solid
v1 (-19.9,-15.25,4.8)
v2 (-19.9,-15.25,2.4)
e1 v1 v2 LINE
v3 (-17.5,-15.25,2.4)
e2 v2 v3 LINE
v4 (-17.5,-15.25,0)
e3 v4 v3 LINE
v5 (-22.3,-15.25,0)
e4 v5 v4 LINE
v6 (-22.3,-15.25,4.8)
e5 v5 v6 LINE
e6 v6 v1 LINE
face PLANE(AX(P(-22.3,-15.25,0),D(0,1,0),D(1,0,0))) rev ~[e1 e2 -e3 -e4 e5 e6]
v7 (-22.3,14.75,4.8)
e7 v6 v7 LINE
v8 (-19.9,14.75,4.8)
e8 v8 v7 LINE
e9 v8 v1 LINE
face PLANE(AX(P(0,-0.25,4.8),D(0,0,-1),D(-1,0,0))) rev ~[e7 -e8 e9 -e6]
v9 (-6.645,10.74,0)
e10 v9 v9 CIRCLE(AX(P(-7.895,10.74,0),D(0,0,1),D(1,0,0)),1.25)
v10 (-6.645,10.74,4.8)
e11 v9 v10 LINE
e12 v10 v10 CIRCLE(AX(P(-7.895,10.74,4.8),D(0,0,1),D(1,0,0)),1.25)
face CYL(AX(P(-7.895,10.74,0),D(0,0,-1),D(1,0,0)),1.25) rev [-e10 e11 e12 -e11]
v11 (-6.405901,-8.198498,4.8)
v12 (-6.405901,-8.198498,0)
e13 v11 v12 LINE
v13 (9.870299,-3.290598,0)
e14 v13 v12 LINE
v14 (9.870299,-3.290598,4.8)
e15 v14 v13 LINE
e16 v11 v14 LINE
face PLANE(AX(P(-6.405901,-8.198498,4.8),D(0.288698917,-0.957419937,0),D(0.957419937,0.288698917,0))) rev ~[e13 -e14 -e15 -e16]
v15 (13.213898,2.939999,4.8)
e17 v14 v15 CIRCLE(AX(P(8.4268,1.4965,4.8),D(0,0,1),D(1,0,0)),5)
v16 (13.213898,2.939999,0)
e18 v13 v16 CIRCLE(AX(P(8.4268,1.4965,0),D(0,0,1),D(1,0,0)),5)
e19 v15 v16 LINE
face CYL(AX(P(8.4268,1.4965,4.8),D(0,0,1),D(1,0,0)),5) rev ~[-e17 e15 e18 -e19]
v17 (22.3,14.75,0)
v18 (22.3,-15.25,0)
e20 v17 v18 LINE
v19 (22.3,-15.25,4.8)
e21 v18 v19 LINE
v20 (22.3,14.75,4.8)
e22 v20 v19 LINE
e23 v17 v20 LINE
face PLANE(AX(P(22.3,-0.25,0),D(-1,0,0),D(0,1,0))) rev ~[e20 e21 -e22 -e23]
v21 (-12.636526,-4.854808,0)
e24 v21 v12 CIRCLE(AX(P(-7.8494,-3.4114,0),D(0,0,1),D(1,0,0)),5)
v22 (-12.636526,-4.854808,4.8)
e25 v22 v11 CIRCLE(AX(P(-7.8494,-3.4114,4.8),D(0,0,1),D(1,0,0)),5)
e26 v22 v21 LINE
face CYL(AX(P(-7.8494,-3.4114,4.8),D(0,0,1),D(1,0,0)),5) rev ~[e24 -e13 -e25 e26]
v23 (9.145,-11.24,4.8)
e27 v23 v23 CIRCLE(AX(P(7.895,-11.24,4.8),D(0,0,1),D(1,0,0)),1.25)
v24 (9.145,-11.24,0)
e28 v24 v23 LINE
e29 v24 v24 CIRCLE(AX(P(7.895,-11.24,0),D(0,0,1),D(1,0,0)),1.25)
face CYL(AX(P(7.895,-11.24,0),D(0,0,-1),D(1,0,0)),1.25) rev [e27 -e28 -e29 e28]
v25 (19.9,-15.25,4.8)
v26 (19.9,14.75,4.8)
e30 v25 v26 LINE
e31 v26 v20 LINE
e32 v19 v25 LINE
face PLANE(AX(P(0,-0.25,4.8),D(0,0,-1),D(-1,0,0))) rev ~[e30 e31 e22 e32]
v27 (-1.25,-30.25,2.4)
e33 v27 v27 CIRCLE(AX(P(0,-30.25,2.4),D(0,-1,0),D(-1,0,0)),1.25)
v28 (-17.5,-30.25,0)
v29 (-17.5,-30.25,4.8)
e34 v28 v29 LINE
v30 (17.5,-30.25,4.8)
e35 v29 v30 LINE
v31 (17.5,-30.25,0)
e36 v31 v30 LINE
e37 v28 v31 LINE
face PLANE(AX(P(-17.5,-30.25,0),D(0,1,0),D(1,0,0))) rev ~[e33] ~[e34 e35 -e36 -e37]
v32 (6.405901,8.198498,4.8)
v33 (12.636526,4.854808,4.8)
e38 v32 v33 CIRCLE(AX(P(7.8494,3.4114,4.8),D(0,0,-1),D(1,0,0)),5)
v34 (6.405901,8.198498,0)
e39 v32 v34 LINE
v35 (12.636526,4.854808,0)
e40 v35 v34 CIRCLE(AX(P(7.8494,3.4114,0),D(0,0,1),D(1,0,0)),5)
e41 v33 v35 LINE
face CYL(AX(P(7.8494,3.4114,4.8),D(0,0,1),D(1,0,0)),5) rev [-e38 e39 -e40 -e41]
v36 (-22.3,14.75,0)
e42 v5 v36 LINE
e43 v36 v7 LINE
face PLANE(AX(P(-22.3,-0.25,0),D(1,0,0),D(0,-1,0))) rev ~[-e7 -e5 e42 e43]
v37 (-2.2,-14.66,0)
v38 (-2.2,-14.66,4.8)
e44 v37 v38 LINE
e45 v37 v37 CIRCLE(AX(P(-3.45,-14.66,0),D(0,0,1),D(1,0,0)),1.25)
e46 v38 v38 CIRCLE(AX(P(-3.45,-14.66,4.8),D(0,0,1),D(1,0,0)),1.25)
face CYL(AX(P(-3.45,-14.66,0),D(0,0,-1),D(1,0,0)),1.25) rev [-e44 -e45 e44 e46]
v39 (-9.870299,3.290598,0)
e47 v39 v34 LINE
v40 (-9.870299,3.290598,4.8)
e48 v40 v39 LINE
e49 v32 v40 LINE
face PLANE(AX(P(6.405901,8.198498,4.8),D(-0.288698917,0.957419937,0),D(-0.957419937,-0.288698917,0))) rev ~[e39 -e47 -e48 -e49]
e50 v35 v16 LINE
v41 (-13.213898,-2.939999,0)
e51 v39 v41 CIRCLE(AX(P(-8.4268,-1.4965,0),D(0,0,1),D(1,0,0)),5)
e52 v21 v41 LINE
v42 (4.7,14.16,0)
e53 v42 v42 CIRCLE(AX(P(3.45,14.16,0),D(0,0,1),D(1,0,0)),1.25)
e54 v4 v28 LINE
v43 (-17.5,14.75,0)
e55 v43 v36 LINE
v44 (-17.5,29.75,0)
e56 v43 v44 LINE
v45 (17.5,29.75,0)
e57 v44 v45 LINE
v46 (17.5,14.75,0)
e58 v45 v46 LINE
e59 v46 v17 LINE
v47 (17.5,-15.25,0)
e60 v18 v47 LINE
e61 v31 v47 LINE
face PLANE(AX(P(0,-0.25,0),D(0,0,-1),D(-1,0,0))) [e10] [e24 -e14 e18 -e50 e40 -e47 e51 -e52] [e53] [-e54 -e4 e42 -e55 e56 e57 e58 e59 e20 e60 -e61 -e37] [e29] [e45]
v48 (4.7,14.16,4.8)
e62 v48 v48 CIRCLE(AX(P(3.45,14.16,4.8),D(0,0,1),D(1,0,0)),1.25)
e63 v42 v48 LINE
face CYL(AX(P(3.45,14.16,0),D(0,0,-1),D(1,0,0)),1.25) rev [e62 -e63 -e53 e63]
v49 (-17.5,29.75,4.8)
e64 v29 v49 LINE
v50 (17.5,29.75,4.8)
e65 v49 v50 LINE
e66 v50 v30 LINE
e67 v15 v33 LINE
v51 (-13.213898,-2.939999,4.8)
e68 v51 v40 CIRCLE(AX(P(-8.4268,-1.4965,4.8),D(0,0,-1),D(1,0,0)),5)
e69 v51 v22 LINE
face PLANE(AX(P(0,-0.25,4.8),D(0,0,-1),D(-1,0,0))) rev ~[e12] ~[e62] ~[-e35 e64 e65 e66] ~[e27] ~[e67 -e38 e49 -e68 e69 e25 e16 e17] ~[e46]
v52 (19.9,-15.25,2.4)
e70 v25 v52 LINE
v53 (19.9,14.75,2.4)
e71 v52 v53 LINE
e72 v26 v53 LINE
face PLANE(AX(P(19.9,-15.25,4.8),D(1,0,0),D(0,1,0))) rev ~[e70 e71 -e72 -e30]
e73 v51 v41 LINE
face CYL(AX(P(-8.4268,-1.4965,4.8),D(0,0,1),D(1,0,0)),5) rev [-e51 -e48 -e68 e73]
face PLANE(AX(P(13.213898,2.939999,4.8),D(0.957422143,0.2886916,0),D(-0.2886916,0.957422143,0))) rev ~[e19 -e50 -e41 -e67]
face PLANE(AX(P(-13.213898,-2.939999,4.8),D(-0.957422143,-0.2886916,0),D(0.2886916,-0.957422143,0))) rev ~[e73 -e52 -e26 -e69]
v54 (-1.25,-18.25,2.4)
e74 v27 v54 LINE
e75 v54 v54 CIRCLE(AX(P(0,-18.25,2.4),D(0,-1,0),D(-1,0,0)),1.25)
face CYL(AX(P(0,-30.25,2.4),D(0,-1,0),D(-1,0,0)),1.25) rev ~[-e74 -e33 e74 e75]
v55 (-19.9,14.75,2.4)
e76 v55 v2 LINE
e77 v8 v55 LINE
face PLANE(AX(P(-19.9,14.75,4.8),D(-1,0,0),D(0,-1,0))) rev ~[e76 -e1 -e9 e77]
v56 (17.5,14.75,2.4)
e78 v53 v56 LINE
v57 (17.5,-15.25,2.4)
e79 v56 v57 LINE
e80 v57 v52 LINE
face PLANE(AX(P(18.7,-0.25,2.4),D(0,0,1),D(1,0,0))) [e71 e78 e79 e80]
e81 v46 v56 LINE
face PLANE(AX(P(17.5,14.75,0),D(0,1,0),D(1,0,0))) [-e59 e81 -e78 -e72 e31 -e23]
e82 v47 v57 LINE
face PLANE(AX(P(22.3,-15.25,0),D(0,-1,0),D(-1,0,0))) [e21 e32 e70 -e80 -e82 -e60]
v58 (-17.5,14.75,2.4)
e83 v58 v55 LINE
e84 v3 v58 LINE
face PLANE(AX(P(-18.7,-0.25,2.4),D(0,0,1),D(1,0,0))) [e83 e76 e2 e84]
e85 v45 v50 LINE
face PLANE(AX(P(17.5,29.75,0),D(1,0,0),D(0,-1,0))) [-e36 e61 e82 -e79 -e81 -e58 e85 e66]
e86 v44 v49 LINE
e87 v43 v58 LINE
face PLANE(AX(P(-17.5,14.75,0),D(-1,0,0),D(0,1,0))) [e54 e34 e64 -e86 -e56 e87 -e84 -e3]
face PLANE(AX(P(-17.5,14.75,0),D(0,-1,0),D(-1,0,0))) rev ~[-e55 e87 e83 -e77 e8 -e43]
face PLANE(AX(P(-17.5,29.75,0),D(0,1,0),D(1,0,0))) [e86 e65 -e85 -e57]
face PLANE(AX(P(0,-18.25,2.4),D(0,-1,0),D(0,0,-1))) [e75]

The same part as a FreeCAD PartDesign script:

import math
import FreeCAD as App
import Part
import Sketcher

V = App.Vector
Q = App.Units.Quantity

doc = App.newDocument("Part")
body = doc.addObject("PartDesign::Body", "Body")

sketch1 = doc.addObject("Sketcher::SketchObject", "Sketch")
body.addObject(sketch1)
sketch1.AttachmentSupport = (doc.XY_Plane, [""])
sketch1.MapMode = "FlatFace"
sketch1.addGeometry([
    Part.LineSegment(V(17.5, 29.75, 0), V(-17.5, 29.75, 0)),
    Part.LineSegment(V(-17.5, 29.75, 0), V(-17.5, 14.75, 0)),
    Part.LineSegment(V(-17.5, 14.75, 0), V(-22.3, 14.75, 0)),
    Part.LineSegment(V(-22.3, 14.75, 0), V(-22.3, -15.25, 0)),
    Part.LineSegment(V(-22.3, -15.25, 0), V(-17.5, -15.25, 0)),
    Part.LineSegment(V(-17.5, -15.25, 0), V(-17.5, -30.25, 0)),
    Part.LineSegment(V(-17.5, -30.25, 0), V(17.5, -30.25, 0)),
    Part.LineSegment(V(17.5, -30.25, 0), V(17.5, -15.25, 0)),
    Part.LineSegment(V(17.5, -15.25, 0), V(22.3, -15.25, 0)),
    Part.LineSegment(V(22.3, -15.25, 0), V(22.3, 14.75, 0)),
    Part.LineSegment(V(22.3, 14.75, 0), V(17.5, 14.75, 0)),
    Part.LineSegment(V(17.5, 14.75, 0), V(17.5, 29.75, 0)),
    Part.Circle(V(-3.45, -14.66, 0), V(0, 0, 1), 1.25),
    Part.Circle(V(7.895, -11.24, 0), V(0, 0, 1), 1.25),
    Part.Circle(V(-7.895, 10.74, 0), V(0, 0, 1), 1.25),
    Part.Circle(V(3.45, 14.16, 0), V(0, 0, 1), 1.25),
], False)
sketch1.addConstraint([
    Sketcher.Constraint("Coincident", 0, 2, 1, 1),
    Sketcher.Constraint("Coincident", 1, 2, 2, 1),
    Sketcher.Constraint("Coincident", 2, 2, 3, 1),
    Sketcher.Constraint("Coincident", 3, 2, 4, 1),
    Sketcher.Constraint("Coincident", 4, 2, 5, 1),
    Sketcher.Constraint("Coincident", 5, 2, 6, 1),
    Sketcher.Constraint("Coincident", 6, 2, 7, 1),
    Sketcher.Constraint("Coincident", 7, 2, 8, 1),
    Sketcher.Constraint("Coincident", 8, 2, 9, 1),
    Sketcher.Constraint("Coincident", 9, 2, 10, 1),
    Sketcher.Constraint("Coincident", 10, 2, 11, 1),
    Sketcher.Constraint("Coincident", 11, 2, 0, 1),
    Sketcher.Constraint("Horizontal", 0),
    Sketcher.Constraint("Vertical", 1),
    Sketcher.Constraint("Horizontal", 2),
    Sketcher.Constraint("Vertical", 3),
    Sketcher.Constraint("Horizontal", 4),
    Sketcher.Constraint("Vertical", 5),
    Sketcher.Constraint("Horizontal", 6),
    Sketcher.Constraint("Vertical", 7),
    Sketcher.Constraint("Horizontal", 8),
    Sketcher.Constraint("Vertical", 9),
    Sketcher.Constraint("Horizontal", 10),
    Sketcher.Constraint("Vertical", 11),
    Sketcher.Constraint("Equal", 12, 13),
    Sketcher.Constraint("Equal", 13, 14),
    Sketcher.Constraint("Equal", 14, 15),
    Sketcher.Constraint("Symmetric", 4, 2, 7, 2, -2),
    Sketcher.Constraint("Symmetric", 2, 2, 9, 2, -2),
    Sketcher.Constraint("Vertical", 1, 2, 4, 2),
    Sketcher.Constraint("Vertical", 7, 2, 10, 2),
    Sketcher.Constraint("Equal", 1, 5),
    Sketcher.Constraint("Diameter", 12, 2.5),
    Sketcher.Constraint("DistanceX", 0, 2, 0, 1, 35.0),
    Sketcher.Constraint("DistanceY", 1, 2, 1, 1, 15.0),
    Sketcher.Constraint("DistanceY", 3, 2, 3, 1, 30.0),
    Sketcher.Constraint("DistanceX", 2, 2, 2, 1, 4.8),
    Sketcher.Constraint("DistanceY", 12, 3, 14, 3, 25.4),
    Sketcher.Constraint("DistanceY", 13, 3, 15, 3, 25.4),
    Sketcher.Constraint("DistanceX", 12, 3, 15, 3, 6.9),
    Sketcher.Constraint("DistanceX", 12, 3, -1, 1, 3.45),
    Sketcher.Constraint("DistanceY", 12, 3, -1, 1, 14.66),
    Sketcher.Constraint("DistanceY", 13, 3, -1, 1, 11.24),
    Sketcher.Constraint("DistanceY", -1, 1, 0, 2, 29.75),
    Sketcher.Constraint("DistanceX", 14, 3, 13, 3, 15.79),
    Sketcher.Constraint("DistanceX", -1, 1, 13, 3, 7.895),
])
pad1 = doc.addObject("PartDesign::Pad", "Pad")
body.addObject(pad1)
pad1.Profile = sketch1
pad1.Length = 4.8

sketch2 = doc.addObject("Sketcher::SketchObject", "Sketch001")
body.addObject(sketch2)
sketch2.AttachmentSupport = (doc.XY_Plane, [""])
sketch2.MapMode = "FlatFace"
sketch2.AttachmentOffset = App.Placement(V(0, 0, 4.8), App.Rotation())
sketch2.addGeometry([
    Part.LineSegment(V(-17.5, 14.75, 0), V(-19.9, 14.75, 0)),
    Part.LineSegment(V(-19.9, 14.75, 0), V(-19.9, -15.25, 0)),
    Part.LineSegment(V(-19.9, -15.25, 0), V(-17.5, -15.25, 0)),
    Part.LineSegment(V(-17.5, -15.25, 0), V(-17.5, 14.75, 0)),
    Part.LineSegment(V(17.5, -15.25, 0), V(19.9, -15.25, 0)),
    Part.LineSegment(V(19.9, -15.25, 0), V(19.9, 14.75, 0)),
    Part.LineSegment(V(19.9, 14.75, 0), V(17.5, 14.75, 0)),
    Part.LineSegment(V(17.5, 14.75, 0), V(17.5, -15.25, 0)),
], False)
sketch2.addConstraint([
    Sketcher.Constraint("Coincident", 0, 2, 1, 1),
    Sketcher.Constraint("Coincident", 1, 2, 2, 1),
    Sketcher.Constraint("Coincident", 2, 2, 3, 1),
    Sketcher.Constraint("Coincident", 3, 2, 0, 1),
    Sketcher.Constraint("Coincident", 4, 2, 5, 1),
    Sketcher.Constraint("Coincident", 5, 2, 6, 1),
    Sketcher.Constraint("Coincident", 6, 2, 7, 1),
    Sketcher.Constraint("Coincident", 7, 2, 4, 1),
    Sketcher.Constraint("Horizontal", 0),
    Sketcher.Constraint("Vertical", 1),
    Sketcher.Constraint("Horizontal", 2),
    Sketcher.Constraint("Vertical", 3),
    Sketcher.Constraint("Horizontal", 4),
    Sketcher.Constraint("Vertical", 5),
    Sketcher.Constraint("Horizontal", 6),
    Sketcher.Constraint("Vertical", 7),
    Sketcher.Constraint("Symmetric", 1, 2, 4, 2, -2),
    Sketcher.Constraint("Symmetric", 3, 2, 6, 2, -2),
    Sketcher.Constraint("DistanceY", 1, 2, 1, 1, 30.0),
    Sketcher.Constraint("DistanceX", 0, 2, 0, 1, 2.4),
    Sketcher.Constraint("DistanceX", 3, 2, 6, 2, 35.0),
    Sketcher.Constraint("DistanceY", -1, 1, 0, 2, 14.75),
])
pocket1 = doc.addObject("PartDesign::Pocket", "Pocket")
body.addObject(pocket1)
pocket1.Profile = sketch2
pocket1.Length = 2.4

sketch3 = doc.addObject("Sketcher::SketchObject", "Sketch002")
body.addObject(sketch3)
sketch3.AttachmentSupport = (doc.XY_Plane, [""])
sketch3.MapMode = "FlatFace"
sketch3.AttachmentOffset = App.Placement(V(0, 0, 4.8), App.Rotation())
sketch3.addGeometry([
    Part.ArcOfCircle(Part.Circle(V(7.8494, 3.4114, 0), V(0, 0, 1), 5.000002), math.radians(16.779039), math.radians(106.780136)),
    Part.LineSegment(V(6.4059, 8.1985, 0), V(-9.8703, 3.2906, 0)),
    Part.ArcOfCircle(Part.Circle(V(-8.4268, -1.4965, 0), V(0, 0, 1), 5.000002), math.radians(106.780136), math.radians(196.780136)),
    Part.LineSegment(V(-13.2139, -2.94, 0), V(-12.6365, -4.8548, 0)),
    Part.ArcOfCircle(Part.Circle(V(-7.8494, -3.4114, 0), V(0, 0, 1), 4.999973), math.radians(-163.220961), math.radians(-73.219864)),
    Part.LineSegment(V(-6.4059, -8.1985, 0), V(9.8703, -3.2906, 0)),
    Part.ArcOfCircle(Part.Circle(V(8.4268, 1.4965, 0), V(0, 0, 1), 5.000002), math.radians(-73.219864), math.radians(16.780136)),
    Part.LineSegment(V(13.2139, 2.94, 0), V(12.6365, 4.8548, 0)),
], False)
sketch3.addConstraint([
    Sketcher.Constraint("Tangent", 0, 2, 1, 1),
    Sketcher.Constraint("Tangent", 1, 2, 2, 1),
    Sketcher.Constraint("Tangent", 2, 2, 3, 1),
    Sketcher.Constraint("Tangent", 3, 2, 4, 1),
    Sketcher.Constraint("Tangent", 4, 2, 5, 1),
    Sketcher.Constraint("Tangent", 5, 2, 6, 1),
    Sketcher.Constraint("Tangent", 6, 2, 7, 1),
    Sketcher.Constraint("Tangent", 7, 2, 0, 1),
    Sketcher.Constraint("Equal", 0, 2),
    Sketcher.Constraint("Equal", 2, 4),
    Sketcher.Constraint("Equal", 4, 6),
    Sketcher.Constraint("Symmetric", 0, 3, 4, 3, -1, 1),
    Sketcher.Constraint("Symmetric", 2, 3, 6, 3, -1, 1),
    Sketcher.Constraint("Perpendicular", 1, 3),
    Sketcher.Constraint("Radius", 0, 5.0),
    Sketcher.Constraint("Distance", 1, 17.0),
    Sketcher.Constraint("Distance", 3, 2.0),
    Sketcher.Constraint("Angle", 1, Q("-163.22 deg")),
])
pocket2 = doc.addObject("PartDesign::Pocket", "Pocket001")
body.addObject(pocket2)
pocket2.Profile = sketch3
pocket2.Length = 5

sketch4 = doc.addObject("Sketcher::SketchObject", "Sketch003")
body.addObject(sketch4)
sketch4.AttachmentSupport = (doc.XZ_Plane, [""])
sketch4.MapMode = "FlatFace"
sketch4.AttachmentOffset = App.Placement(V(0, 0, 30.25), App.Rotation())
sketch4.addGeometry(Part.Circle(V(0, 2.4, 0), V(0, 0, 1), 1.25), False)
sketch4.addConstraint([
    Sketcher.Constraint("PointOnObject", 0, 3, -2),
    Sketcher.Constraint("Diameter", 0, 2.5),
    Sketcher.Constraint("DistanceY", -1, 1, 0, 3, 2.4),
])
pocket3 = doc.addObject("PartDesign::Pocket", "Pocket002")
body.addObject(pocket3)
pocket3.Profile = sketch4
pocket3.Length = 12

doc.recompute()
